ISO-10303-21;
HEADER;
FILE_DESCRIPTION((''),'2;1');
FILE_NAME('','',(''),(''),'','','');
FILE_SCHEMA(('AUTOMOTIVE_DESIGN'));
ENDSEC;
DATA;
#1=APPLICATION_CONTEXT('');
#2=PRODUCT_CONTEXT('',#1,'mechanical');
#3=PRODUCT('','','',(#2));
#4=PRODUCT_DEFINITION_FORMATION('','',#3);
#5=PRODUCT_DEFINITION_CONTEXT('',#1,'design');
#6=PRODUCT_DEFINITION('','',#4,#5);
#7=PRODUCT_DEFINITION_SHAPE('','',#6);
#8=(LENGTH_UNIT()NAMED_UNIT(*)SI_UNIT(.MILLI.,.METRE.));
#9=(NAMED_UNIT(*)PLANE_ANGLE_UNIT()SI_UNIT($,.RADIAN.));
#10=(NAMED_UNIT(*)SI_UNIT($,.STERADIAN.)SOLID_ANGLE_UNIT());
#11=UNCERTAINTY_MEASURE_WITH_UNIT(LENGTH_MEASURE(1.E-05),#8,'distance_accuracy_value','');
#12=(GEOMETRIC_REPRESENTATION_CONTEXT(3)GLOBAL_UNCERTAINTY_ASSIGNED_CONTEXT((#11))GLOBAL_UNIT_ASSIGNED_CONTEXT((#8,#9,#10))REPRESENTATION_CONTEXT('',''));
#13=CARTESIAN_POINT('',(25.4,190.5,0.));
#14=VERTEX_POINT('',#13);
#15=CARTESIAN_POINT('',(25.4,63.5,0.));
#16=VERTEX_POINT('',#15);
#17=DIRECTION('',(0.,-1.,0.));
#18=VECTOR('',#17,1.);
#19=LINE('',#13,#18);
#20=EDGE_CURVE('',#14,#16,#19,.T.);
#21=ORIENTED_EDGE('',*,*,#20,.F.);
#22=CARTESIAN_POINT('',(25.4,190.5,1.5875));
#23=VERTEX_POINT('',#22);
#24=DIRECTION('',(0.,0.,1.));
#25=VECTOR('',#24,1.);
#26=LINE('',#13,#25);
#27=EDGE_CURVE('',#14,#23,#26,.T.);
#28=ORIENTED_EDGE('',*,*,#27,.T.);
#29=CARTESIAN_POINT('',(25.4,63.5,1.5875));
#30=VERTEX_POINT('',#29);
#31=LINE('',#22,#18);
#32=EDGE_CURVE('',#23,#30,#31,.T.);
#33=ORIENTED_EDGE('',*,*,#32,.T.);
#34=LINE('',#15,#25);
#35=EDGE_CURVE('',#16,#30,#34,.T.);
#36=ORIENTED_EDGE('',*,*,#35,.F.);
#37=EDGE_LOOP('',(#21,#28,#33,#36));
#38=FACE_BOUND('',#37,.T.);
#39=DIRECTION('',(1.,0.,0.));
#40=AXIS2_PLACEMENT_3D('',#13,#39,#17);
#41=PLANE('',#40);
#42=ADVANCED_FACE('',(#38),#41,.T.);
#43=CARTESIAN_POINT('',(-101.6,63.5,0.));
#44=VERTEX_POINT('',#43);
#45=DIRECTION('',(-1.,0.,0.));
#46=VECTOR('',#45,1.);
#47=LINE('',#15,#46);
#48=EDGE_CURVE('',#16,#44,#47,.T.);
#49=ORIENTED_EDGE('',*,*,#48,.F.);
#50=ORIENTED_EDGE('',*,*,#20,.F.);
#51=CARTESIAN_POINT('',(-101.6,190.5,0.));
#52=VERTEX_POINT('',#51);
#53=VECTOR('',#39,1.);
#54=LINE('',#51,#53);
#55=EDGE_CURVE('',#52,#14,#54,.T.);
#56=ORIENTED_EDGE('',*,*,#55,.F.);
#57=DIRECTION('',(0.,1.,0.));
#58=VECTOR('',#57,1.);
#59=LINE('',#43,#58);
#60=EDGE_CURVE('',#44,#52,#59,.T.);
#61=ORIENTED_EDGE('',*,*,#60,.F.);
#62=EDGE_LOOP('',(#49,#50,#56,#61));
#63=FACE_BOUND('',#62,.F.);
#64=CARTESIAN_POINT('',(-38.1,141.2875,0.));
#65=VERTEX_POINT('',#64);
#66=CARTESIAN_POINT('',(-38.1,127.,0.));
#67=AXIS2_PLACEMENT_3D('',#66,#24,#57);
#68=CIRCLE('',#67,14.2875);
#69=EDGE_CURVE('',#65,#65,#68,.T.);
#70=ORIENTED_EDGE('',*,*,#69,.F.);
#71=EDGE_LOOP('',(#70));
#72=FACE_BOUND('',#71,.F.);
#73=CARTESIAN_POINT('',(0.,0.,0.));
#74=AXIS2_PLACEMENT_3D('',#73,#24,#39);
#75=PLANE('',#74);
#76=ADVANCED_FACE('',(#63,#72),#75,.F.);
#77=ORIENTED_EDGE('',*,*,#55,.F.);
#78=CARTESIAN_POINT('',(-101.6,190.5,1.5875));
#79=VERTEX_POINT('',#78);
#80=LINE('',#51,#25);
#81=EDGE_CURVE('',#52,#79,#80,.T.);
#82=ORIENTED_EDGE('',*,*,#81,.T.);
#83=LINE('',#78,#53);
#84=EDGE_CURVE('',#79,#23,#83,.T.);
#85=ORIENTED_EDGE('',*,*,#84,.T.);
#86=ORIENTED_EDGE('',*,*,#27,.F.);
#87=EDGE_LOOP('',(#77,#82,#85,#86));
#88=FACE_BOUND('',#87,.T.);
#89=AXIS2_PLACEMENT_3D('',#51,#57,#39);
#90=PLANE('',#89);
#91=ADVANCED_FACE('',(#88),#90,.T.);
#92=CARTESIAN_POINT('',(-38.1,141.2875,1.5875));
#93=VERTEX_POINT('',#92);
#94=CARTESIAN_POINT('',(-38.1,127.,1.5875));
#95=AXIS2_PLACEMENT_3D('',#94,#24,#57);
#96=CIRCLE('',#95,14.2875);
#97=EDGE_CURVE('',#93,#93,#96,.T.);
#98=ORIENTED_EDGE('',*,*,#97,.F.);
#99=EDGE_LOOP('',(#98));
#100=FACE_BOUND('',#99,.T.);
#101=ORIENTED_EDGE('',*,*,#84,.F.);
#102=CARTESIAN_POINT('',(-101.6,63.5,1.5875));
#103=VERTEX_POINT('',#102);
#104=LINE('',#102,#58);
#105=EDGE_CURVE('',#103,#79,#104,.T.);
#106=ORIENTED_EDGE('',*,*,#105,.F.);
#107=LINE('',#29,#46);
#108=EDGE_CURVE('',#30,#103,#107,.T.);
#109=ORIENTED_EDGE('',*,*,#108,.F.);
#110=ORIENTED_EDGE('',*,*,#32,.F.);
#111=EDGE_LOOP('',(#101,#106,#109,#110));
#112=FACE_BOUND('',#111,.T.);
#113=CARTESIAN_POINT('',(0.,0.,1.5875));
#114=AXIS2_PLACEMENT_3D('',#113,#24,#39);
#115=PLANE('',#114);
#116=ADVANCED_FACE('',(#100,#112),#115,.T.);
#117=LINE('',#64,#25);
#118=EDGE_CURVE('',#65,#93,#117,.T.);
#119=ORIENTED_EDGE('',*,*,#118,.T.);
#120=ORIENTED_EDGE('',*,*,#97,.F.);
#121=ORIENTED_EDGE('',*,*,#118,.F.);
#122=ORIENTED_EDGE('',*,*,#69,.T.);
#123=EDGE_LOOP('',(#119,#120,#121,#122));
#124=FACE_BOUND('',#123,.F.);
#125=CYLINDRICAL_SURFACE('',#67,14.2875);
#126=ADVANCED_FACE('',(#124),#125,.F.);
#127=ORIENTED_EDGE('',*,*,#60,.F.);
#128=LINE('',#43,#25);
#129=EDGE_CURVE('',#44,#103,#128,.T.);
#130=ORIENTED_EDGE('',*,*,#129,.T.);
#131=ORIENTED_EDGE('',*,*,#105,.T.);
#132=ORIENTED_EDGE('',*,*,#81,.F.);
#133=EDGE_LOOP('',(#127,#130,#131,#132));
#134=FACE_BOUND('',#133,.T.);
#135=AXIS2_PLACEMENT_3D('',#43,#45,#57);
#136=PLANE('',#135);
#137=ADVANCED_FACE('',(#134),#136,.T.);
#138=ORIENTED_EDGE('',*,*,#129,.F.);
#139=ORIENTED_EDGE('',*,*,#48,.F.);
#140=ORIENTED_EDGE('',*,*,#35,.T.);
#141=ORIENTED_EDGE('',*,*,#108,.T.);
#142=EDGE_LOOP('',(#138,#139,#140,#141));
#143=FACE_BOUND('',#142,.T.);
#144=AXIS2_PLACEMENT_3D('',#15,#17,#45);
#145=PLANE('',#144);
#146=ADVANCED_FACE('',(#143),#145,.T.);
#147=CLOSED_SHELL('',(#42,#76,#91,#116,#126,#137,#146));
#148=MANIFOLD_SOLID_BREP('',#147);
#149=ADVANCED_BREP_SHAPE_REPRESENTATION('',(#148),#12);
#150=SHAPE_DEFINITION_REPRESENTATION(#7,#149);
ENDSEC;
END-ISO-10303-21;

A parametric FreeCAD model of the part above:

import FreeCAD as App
import Part
import Sketcher

V = App.Vector
Q = App.Units.Quantity

doc = App.newDocument("Part")
body = doc.addObject("PartDesign::Body", "Body")

sketch1 = doc.addObject("Sketcher::SketchObject", "Sketch")
body.addObject(sketch1)
sketch1.AttachmentSupport = (doc.XY_Plane, [""])
sketch1.MapMode = "FlatFace"
sketch1.addGeometry([
    Part.LineSegment(V(-102, 64, 0), V(25, 64, 0)),
    Part.LineSegment(V(25, 64, 0), V(25, 190, 0)),
    Part.LineSegment(V(25, 190, 0), V(-102, 190, 0)),
    Part.LineSegment(V(-102, 190, 0), V(-102, 64, 0)),
], False)
sketch1.addConstraint([
    Sketcher.Constraint("Coincident", 0, 2, 1, 1),
    Sketcher.Constraint("Coincident", 1, 2, 2, 1),
    Sketcher.Constraint("Coincident", 2, 2, 3, 1),
    Sketcher.Constraint("Coincident", 3, 2, 0, 1),
    Sketcher.Constraint("Horizontal", 0),
    Sketcher.Constraint("Vertical", 1),
    Sketcher.Constraint("Horizontal", 2),
    Sketcher.Constraint("Vertical", 3),
    Sketcher.Constraint("Equal", 2, 1),
    Sketcher.Constraint("DistanceX", 0, 1, 0, 2, Q("5 in")),
    Sketcher.Constraint("DistanceX", -1, 1, 0, 2, Q("1 in")),
    Sketcher.Constraint("DistanceY", -1, 1, 0, 2, Q("2.5 in")),
])
pad1 = doc.addObject("PartDesign::Pad", "Pad")
body.addObject(pad1)
pad1.Profile = sketch1
pad1.Length = Q("0.0625 in")

sketch2 = doc.addObject("Sketcher::SketchObject", "Sketch001")
body.addObject(sketch2)
sketch2.AttachmentSupport = (doc.XY_Plane, [""])
sketch2.MapMode = "FlatFace"
sketch2.addGeometry(Part.Circle(V(-38, 127, 0), V(0, 0, 1), 14), False)
sketch2.addConstraint([
    Sketcher.Constraint("Diameter", 0, Q("1.125 in")),
    Sketcher.Constraint("DistanceY", -1, 1, 0, 3, Q("5 in")),
    Sketcher.Constraint("DistanceX", 0, 3, -1, 1, Q("1.5 in")),
])
doc.recompute()
hole = doc.addObject("PartDesign::Hole", "Hole")
body.addObject(hole)
hole.Profile = sketch2
hole.ThreadType = "None"
hole.Diameter = Q("1.125 in")
hole.DepthType = "ThroughAll"
hole.Reversed = True

doc.recompute()
